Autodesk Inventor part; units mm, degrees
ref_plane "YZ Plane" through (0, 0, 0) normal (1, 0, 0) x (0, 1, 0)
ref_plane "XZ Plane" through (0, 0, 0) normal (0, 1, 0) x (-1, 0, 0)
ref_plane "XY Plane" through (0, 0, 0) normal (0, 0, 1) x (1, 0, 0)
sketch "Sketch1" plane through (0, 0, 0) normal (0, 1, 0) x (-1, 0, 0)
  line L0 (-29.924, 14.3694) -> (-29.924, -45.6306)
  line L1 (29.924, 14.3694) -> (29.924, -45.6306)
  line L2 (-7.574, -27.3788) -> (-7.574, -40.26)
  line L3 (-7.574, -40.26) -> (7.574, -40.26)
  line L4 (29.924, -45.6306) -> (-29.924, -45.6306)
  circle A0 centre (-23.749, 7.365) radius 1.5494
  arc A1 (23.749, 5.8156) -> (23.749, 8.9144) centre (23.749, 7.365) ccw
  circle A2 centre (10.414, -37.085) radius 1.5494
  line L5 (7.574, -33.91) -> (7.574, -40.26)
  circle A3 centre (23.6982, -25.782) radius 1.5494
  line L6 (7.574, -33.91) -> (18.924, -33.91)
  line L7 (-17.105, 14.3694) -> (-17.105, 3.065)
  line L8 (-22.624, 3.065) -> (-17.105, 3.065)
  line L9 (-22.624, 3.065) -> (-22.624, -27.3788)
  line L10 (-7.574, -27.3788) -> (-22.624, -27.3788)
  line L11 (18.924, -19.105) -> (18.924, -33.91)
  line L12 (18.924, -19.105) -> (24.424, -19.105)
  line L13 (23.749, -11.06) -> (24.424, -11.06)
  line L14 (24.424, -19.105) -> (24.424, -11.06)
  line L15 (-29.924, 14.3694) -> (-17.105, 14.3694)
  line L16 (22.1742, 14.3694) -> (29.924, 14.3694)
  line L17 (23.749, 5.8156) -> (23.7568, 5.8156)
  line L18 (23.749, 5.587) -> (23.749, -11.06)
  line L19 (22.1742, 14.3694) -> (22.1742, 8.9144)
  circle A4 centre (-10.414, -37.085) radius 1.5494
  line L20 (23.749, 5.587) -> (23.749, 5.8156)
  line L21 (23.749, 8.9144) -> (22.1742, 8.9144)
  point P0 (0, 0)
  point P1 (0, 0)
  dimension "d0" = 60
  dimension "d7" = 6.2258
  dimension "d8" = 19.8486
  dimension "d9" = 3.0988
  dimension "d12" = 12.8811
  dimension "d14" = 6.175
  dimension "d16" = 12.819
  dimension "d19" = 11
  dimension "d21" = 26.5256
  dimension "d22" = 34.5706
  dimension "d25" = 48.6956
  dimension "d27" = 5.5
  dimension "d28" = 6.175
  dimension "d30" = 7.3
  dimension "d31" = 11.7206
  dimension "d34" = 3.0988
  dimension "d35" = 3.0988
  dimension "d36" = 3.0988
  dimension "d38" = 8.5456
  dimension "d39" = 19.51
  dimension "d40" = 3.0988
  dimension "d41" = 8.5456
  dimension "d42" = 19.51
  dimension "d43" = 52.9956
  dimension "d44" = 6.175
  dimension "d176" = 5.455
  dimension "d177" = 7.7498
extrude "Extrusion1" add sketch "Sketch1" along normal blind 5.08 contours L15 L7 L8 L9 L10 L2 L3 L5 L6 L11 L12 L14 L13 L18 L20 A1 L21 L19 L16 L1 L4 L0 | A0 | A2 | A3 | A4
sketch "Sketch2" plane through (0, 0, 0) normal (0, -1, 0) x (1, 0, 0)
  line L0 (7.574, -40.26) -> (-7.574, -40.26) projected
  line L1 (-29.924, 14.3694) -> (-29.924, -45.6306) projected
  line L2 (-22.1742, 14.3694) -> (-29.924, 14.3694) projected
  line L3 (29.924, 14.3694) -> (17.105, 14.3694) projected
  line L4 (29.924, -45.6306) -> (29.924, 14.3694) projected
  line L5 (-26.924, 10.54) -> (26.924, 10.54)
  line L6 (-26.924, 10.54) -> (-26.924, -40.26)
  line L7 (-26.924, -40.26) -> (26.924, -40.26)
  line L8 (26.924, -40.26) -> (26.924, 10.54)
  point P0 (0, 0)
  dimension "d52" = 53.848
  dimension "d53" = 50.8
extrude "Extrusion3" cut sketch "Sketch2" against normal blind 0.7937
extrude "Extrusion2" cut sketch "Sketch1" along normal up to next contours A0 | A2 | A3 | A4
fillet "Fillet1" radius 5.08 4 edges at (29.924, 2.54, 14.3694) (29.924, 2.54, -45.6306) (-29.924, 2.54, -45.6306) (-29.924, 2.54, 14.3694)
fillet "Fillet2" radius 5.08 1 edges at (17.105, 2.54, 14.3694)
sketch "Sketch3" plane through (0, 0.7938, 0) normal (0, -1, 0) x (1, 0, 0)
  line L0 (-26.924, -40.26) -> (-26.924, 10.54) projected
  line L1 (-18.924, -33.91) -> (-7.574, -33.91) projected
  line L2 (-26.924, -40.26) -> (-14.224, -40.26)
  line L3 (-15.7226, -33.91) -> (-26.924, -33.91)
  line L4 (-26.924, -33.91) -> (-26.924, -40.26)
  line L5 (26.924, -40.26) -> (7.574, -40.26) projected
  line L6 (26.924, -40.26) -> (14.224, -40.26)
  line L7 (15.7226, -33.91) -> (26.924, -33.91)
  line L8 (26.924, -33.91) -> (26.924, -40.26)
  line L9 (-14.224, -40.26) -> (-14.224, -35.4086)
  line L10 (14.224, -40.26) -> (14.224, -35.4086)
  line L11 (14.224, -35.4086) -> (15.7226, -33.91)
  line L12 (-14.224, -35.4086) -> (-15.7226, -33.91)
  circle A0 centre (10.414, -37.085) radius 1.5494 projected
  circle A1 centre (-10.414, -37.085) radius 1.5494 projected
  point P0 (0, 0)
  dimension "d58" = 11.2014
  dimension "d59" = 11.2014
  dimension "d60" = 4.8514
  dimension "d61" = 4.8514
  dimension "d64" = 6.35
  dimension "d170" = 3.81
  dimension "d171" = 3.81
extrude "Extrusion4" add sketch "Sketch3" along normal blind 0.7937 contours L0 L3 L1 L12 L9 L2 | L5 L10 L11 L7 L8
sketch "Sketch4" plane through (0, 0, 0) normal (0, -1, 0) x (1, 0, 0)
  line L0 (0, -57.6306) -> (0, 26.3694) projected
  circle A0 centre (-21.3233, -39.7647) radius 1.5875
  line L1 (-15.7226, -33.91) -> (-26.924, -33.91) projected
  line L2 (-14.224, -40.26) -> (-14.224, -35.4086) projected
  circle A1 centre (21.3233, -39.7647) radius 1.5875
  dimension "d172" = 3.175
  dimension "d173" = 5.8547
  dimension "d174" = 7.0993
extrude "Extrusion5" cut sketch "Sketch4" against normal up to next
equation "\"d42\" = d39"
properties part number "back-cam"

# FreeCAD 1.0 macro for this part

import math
import FreeCAD as App
import Part
import Sketcher
from FreeCAD import Vector
Q = App.Units.Quantity


def edges_at(feature, points):
    """Names of the edges that pass closest to the given points."""
    edges = feature.Shape.Edges
    near = lambda p: min(range(len(edges)), key=lambda i: edges[i].distToShape(Part.Vertex(*p))[0])
    return sorted({f"Edge{near(p) + 1}" for p in points})

doc = App.newDocument("Part")
body = doc.addObject("PartDesign::Body", "Body")

sketch1 = doc.addObject("Sketcher::SketchObject", "Sketch")
body.addObject(sketch1)
sketch1.AttachmentSupport = (doc.XZ_Plane, [""])
sketch1.MapMode = "FlatFace"
sketch1.addGeometry(Part.LineSegment(Vector(17.105, 14.3694, 0), Vector(29.924, 14.3694, 0)), False)
sketch1.addGeometry(Part.LineSegment(Vector(29.924, 14.3694, 0), Vector(29.924, -45.6306, 0)), False)
sketch1.addGeometry(Part.LineSegment(Vector(29.924, -45.6306, 0), Vector(-29.924, -45.6306, 0)), False)
sketch1.addGeometry(Part.LineSegment(Vector(-29.924, -45.6306, 0), Vector(-29.924, 14.3694, 0)), False)
sketch1.addGeometry(Part.LineSegment(Vector(-29.924, 14.3694, 0), Vector(-22.1742, 14.3694, 0)), False)
sketch1.addGeometry(Part.LineSegment(Vector(-22.1742, 14.3694, 0), Vector(-22.1742, 8.9144, 0)), False)
sketch1.addGeometry(Part.LineSegment(Vector(-22.1742, 8.9144, 0), Vector(-23.749, 8.9144, 0)), False)
sketch1.addGeometry(Part.ArcOfCircle(Part.Circle(Vector(-23.749, 7.365, 0), Vector(0, 0, 1), 1.5494), math.radians(90), math.radians(270)), False)
sketch1.addGeometry(Part.LineSegment(Vector(-23.749, 5.8156, 0), Vector(-23.749, -11.06, 0)), False)
sketch1.addGeometry(Part.LineSegment(Vector(-23.749, -11.06, 0), Vector(-24.424, -11.06, 0)), False)
sketch1.addGeometry(Part.LineSegment(Vector(-24.424, -11.06, 0), Vector(-24.424, -19.105, 0)), False)
sketch1.addGeometry(Part.LineSegment(Vector(-24.424, -19.105, 0), Vector(-18.924, -19.105, 0)), False)
sketch1.addGeometry(Part.LineSegment(Vector(-18.924, -19.105, 0), Vector(-18.924, -33.91, 0)), False)
sketch1.addGeometry(Part.LineSegment(Vector(-18.924, -33.91, 0), Vector(-7.574, -33.91, 0)), False)
sketch1.addGeometry(Part.LineSegment(Vector(-7.574, -33.91, 0), Vector(-7.574, -40.26, 0)), False)
sketch1.addGeometry(Part.LineSegment(Vector(-7.574, -40.26, 0), Vector(7.574, -40.26, 0)), False)
sketch1.addGeometry(Part.LineSegment(Vector(7.574, -40.26, 0), Vector(7.574, -27.3788, 0)), False)
sketch1.addGeometry(Part.LineSegment(Vector(7.574, -27.3788, 0), Vector(22.624, -27.3788, 0)), False)
sketch1.addGeometry(Part.LineSegment(Vector(22.624, -27.3788, 0), Vector(22.624, 3.065, 0)), False)
sketch1.addGeometry(Part.LineSegment(Vector(22.624, 3.065, 0), Vector(17.105, 3.065, 0)), False)
sketch1.addGeometry(Part.LineSegment(Vector(17.105, 3.065, 0), Vector(17.105, 14.3694, 0)), False)
sketch1.addConstraint(Sketcher.Constraint("Coincident", 0, 2, 1, 1))
sketch1.addConstraint(Sketcher.Constraint("Coincident", 1, 2, 2, 1))
sketch1.addConstraint(Sketcher.Constraint("Coincident", 2, 2, 3, 1))
sketch1.addConstraint(Sketcher.Constraint("Coincident", 3, 2, 4, 1))
sketch1.addConstraint(Sketcher.Constraint("Coincident", 4, 2, 5, 1))
sketch1.addConstraint(Sketcher.Constraint("Coincident", 5, 2, 6, 1))
sketch1.addConstraint(Sketcher.Constraint("Tangent", 6, 2, 7, 1))
sketch1.addConstraint(Sketcher.Constraint("Coincident", 7, 2, 8, 1))
sketch1.addConstraint(Sketcher.Constraint("Coincident", 8, 2, 9, 1))
sketch1.addConstraint(Sketcher.Constraint("Coincident", 9, 2, 10, 1))
sketch1.addConstraint(Sketcher.Constraint("Coincident", 10, 2, 11, 1))
sketch1.addConstraint(Sketcher.Constraint("Coincident", 11, 2, 12, 1))
sketch1.addConstraint(Sketcher.Constraint("Coincident", 12, 2, 13, 1))
sketch1.addConstraint(Sketcher.Constraint("Coincident", 13, 2, 14, 1))
sketch1.addConstraint(Sketcher.Constraint("Coincident", 14, 2, 15, 1))
sketch1.addConstraint(Sketcher.Constraint("Coincident", 15, 2, 16, 1))
sketch1.addConstraint(Sketcher.Constraint("Coincident", 16, 2, 17, 1))
sketch1.addConstraint(Sketcher.Constraint("Coincident", 17, 2, 18, 1))
sketch1.addConstraint(Sketcher.Constraint("Coincident", 18, 2, 19, 1))
sketch1.addConstraint(Sketcher.Constraint("Coincident", 19, 2, 20, 1))
sketch1.addConstraint(Sketcher.Constraint("Coincident", 20, 2, 0, 1))
sketch1.addConstraint(Sketcher.Constraint("Horizontal", 0))
sketch1.addConstraint(Sketcher.Constraint("Vertical", 1))
sketch1.addConstraint(Sketcher.Constraint("Horizontal", 2))
sketch1.addConstraint(Sketcher.Constraint("Vertical", 3))
sketch1.addConstraint(Sketcher.Constraint("Horizontal", 4))
sketch1.addConstraint(Sketcher.Constraint("Vertical", 5))
sketch1.addConstraint(Sketcher.Constraint("Horizontal", 6))
sketch1.addConstraint(Sketcher.Constraint("Vertical", 8))
sketch1.addConstraint(Sketcher.Constraint("Horizontal", 9))
sketch1.addConstraint(Sketcher.Constraint("Vertical", 10))
sketch1.addConstraint(Sketcher.Constraint("Horizontal", 11))
sketch1.addConstraint(Sketcher.Constraint("Vertical", 12))
sketch1.addConstraint(Sketcher.Constraint("Horizontal", 13))
sketch1.addConstraint(Sketcher.Constraint("Vertical", 14))
sketch1.addConstraint(Sketcher.Constraint("Horizontal", 15))
sketch1.addConstraint(Sketcher.Constraint("Vertical", 16))
sketch1.addConstraint(Sketcher.Constraint("Horizontal", 17))
sketch1.addConstraint(Sketcher.Constraint("Vertical", 18))
sketch1.addConstraint(Sketcher.Constraint("Horizontal", 19))
sketch1.addConstraint(Sketcher.Constraint("Vertical", 20))
sketch1.addConstraint(Sketcher.Constraint("Symmetric", 0, 2, 3, 2, -2))
sketch1.addConstraint(Sketcher.Constraint("Vertical", 6, 2, 7, 2))
sketch1.addConstraint(Sketcher.Constraint("Radius", 7, Q("0.061 in")))
sketch1.addConstraint(Sketcher.Constraint("DistanceX", 4, 1, 4, 2, Q("0.3051 in")))
sketch1.addConstraint(Sketcher.Constraint("DistanceY", 1, 2, 1, 1, Q("2.3622 in")))
sketch1.addConstraint(Sketcher.Constraint("DistanceX", 0, 1, 0, 2, Q("12.819 mm")))
sketch1.addConstraint(Sketcher.Constraint("DistanceX", 11, 1, 11, 2, Q("5.5 mm")))
sketch1.addConstraint(Sketcher.Constraint("DistanceY", 5, 2, 5, 1, Q("5.455 mm")))
sketch1.addConstraint(Sketcher.Constraint("DistanceY", 14, 2, 14, 1, Q("0.25 in")))
sketch1.addConstraint(Sketcher.Constraint("DistanceY", 16, 1, 16, 2, Q("12.8812 mm")))
sketch1.addConstraint(Sketcher.Constraint("DistanceX", 2, 2, 7, 3, Q("0.2431 in")))
sketch1.addConstraint(Sketcher.Constraint("DistanceX", 17, 2, 1, 2, Q("0.2874 in")))
sketch1.addConstraint(Sketcher.Constraint("DistanceX", 2, 2, 10, 2, Q("5.5 mm")))
sketch1.addConstraint(Sketcher.Constraint("DistanceY", 2, 2, 10, 2, Q("26.5256 mm")))
sketch1.addConstraint(Sketcher.Constraint("DistanceY", 2, 2, 12, 2, Q("11.7206 mm")))
sketch1.addConstraint(Sketcher.Constraint("DistanceY", 8, 2, 8, 1, Q("0.6644 in")))
sketch1.addConstraint(Sketcher.Constraint("DistanceX", 7, 3, -1, 1, Q("0.935 in")))
sketch1.addConstraint(Sketcher.Constraint("DistanceX", 13, 1, 13, 2, Q("11.35 mm")))
sketch1.addConstraint(Sketcher.Constraint("DistanceX", 15, 1, 15, 2, Q("15.148 mm")))
sketch1.addConstraint(Sketcher.Constraint("DistanceY", 18, 1, 18, 2, Q("30.4438 mm")))
sketch1.addConstraint(Sketcher.Constraint("DistanceY", 16, 2, -1, 1, Q("1.0779 in")))
pad1 = doc.addObject("PartDesign::Pad", "Pad")
body.addObject(pad1)
pad1.Profile = sketch1
pad1.Length = Q("0.2 in")
pad1.Reversed = True

sketch2 = doc.addObject("Sketcher::SketchObject", "Sketch001")
body.addObject(sketch2)
sketch2.AttachmentSupport = (doc.XZ_Plane, [""])
sketch2.MapMode = "FlatFace"
sketch2.addGeometry(Part.LineSegment(Vector(-26.924, -40.26, 0), Vector(26.924, -40.26, 0)), False)
sketch2.addGeometry(Part.LineSegment(Vector(26.924, -40.26, 0), Vector(26.924, 10.54, 0)), False)
sketch2.addGeometry(Part.LineSegment(Vector(26.924, 10.54, 0), Vector(-26.924, 10.54, 0)), False)
sketch2.addGeometry(Part.LineSegment(Vector(-26.924, 10.54, 0), Vector(-26.924, -40.26, 0)), False)
sketch2.addConstraint(Sketcher.Constraint("Coincident", 0, 2, 1, 1))
sketch2.addConstraint(Sketcher.Constraint("Coincident", 1, 2, 2, 1))
sketch2.addConstraint(Sketcher.Constraint("Coincident", 2, 2, 3, 1))
sketch2.addConstraint(Sketcher.Constraint("Coincident", 3, 2, 0, 1))
sketch2.addConstraint(Sketcher.Constraint("Horizontal", 0))
sketch2.addConstraint(Sketcher.Constraint("Vertical", 1))
sketch2.addConstraint(Sketcher.Constraint("Horizontal", 2))
sketch2.addConstraint(Sketcher.Constraint("Vertical", 3))
sketch2.addConstraint(Sketcher.Constraint("DistanceY", 1, 1, 1, 2, Q("2 in")))
sketch2.addConstraint(Sketcher.Constraint("DistanceX", 0, 1, 0, 2, Q("2.12 in")))
sketch2.addConstraint(Sketcher.Constraint("DistanceX", -1, 1, 0, 2, Q("1.06 in")))
sketch2.addConstraint(Sketcher.Constraint("DistanceY", 0, 2, -1, 1, Q("40.26 mm")))
pocket1 = doc.addObject("PartDesign::Pocket", "Pocket")
body.addObject(pocket1)
pocket1.Profile = sketch2
pocket1.Length = Q("0.031248 in")

sketch3 = doc.addObject("Sketcher::SketchObject", "Sketch002")
body.addObject(sketch3)
sketch3.AttachmentSupport = (doc.XZ_Plane, [""])
sketch3.MapMode = "FlatFace"
sketch3.addGeometry(Part.Circle(Vector(23.749, 7.365, 0), Vector(0, 0, 1), 1.5494), False)
sketch3.addGeometry(Part.Circle(Vector(-10.414, -37.085, 0), Vector(0, 0, 1), 1.5494), False)
sketch3.addGeometry(Part.Circle(Vector(-23.6982, -25.782, 0), Vector(0, 0, 1), 1.5494), False)
sketch3.addGeometry(Part.Circle(Vector(10.414, -37.085, 0), Vector(0, 0, 1), 1.5494), False)
sketch3.addConstraint(Sketcher.Constraint("Equal", 0, 1))
sketch3.addConstraint(Sketcher.Constraint("Equal", 1, 2))
sketch3.addConstraint(Sketcher.Constraint("Equal", 2, 3))
sketch3.addConstraint(Sketcher.Constraint("Symmetric", 1, 3, 3, 3, -2))
sketch3.addConstraint(Sketcher.Constraint("Diameter", 0, Q("0.122 in")))
sketch3.addConstraint(Sketcher.Constraint("DistanceX", 1, 3, -1, 1, Q("0.41 in")))
sketch3.addConstraint(Sketcher.Constraint("DistanceY", 1, 3, 0, 3, Q("1.75 in")))
sketch3.addConstraint(Sketcher.Constraint("DistanceX", -1, 1, 0, 3, Q("0.935 in")))
sketch3.addConstraint(Sketcher.Constraint("DistanceX", 2, 3, -1, 1, Q("0.933 in")))
sketch3.addConstraint(Sketcher.Constraint("DistanceY", 1, 3, 2, 3, Q("0.445 in")))
sketch3.addConstraint(Sketcher.Constraint("DistanceY", -1, 1, 0, 3, Q("7.365 mm")))
pocket2 = doc.addObject("PartDesign::Pocket", "Pocket001")
body.addObject(pocket2)
pocket2.Profile = sketch3
pocket2.Length = Q("0.2 in")
doc.recompute()

fillet = doc.addObject("PartDesign::Fillet", "Fillet")
body.addObject(fillet)
fillet.Base = (pocket2, edges_at(pocket2, [
    (29.924, 2.54, 14.369),
    (29.924, 2.54, -45.631),
    (-29.924, 2.54, -45.631),
    (-29.924, 2.54, 14.369),
]))
fillet.Radius = Q("0.2 in")
doc.recompute()

fillet2 = doc.addObject("PartDesign::Fillet", "Fillet001")
body.addObject(fillet2)
fillet2.Base = (fillet, edges_at(fillet, [(17.105, 2.54, 14.369)]))
fillet2.Radius = Q("0.2 in")

sketch4 = doc.addObject("Sketcher::SketchObject", "Sketch003")
body.addObject(sketch4)
sketch4.AttachmentSupport = (doc.XZ_Plane, [""])
sketch4.MapMode = "FlatFace"
sketch4.AttachmentOffset = App.Placement(Vector(0, 0, -0.031252 * 25.4), App.Rotation())
sketch4.addGeometry(Part.LineSegment(Vector(-26.924, -33.91, 0), Vector(-26.924, -40.26, 0)), False)
sketch4.addGeometry(Part.LineSegment(Vector(-26.924, -40.26, 0), Vector(-14.224, -40.26, 0)), False)
sketch4.addGeometry(Part.LineSegment(Vector(-14.224, -40.26, 0), Vector(-14.224, -35.4086, 0)), False)
sketch4.addGeometry(Part.LineSegment(Vector(-14.224, -35.4086, 0), Vector(-15.7226, -33.91, 0)), False)
sketch4.addGeometry(Part.LineSegment(Vector(-15.7226, -33.91, 0), Vector(-26.924, -33.91, 0)), False)
sketch4.addGeometry(Part.LineSegment(Vector(14.224, -40.26, 0), Vector(26.924, -40.26, 0)), False)
sketch4.addGeometry(Part.LineSegment(Vector(26.924, -40.26, 0), Vector(26.924, -33.91, 0)), False)
sketch4.addGeometry(Part.LineSegment(Vector(26.924, -33.91, 0), Vector(15.7226, -33.91, 0)), False)
sketch4.addGeometry(Part.LineSegment(Vector(15.7226, -33.91, 0), Vector(14.224, -35.4086, 0)), False)
sketch4.addGeometry(Part.LineSegment(Vector(14.224, -35.4086, 0), Vector(14.224, -40.26, 0)), False)
sketch4.addConstraint(Sketcher.Constraint("Coincident", 0, 2, 1, 1))
sketch4.addConstraint(Sketcher.Constraint("Coincident", 1, 2, 2, 1))
sketch4.addConstraint(Sketcher.Constraint("Coincident", 2, 2, 3, 1))
sketch4.addConstraint(Sketcher.Constraint("Coincident", 3, 2, 4, 1))
sketch4.addConstraint(Sketcher.Constraint("Coincident", 4, 2, 0, 1))
sketch4.addConstraint(Sketcher.Constraint("Coincident", 5, 2, 6, 1))
sketch4.addConstraint(Sketcher.Constraint("Coincident", 6, 2, 7, 1))
sketch4.addConstraint(Sketcher.Constraint("Coincident", 7, 2, 8, 1))
sketch4.addConstraint(Sketcher.Constraint("Coincident", 8, 2, 9, 1))
sketch4.addConstraint(Sketcher.Constraint("Coincident", 9, 2, 5, 1))
sketch4.addConstraint(Sketcher.Constraint("Vertical", 0))
sketch4.addConstraint(Sketcher.Constraint("Horizontal", 1))
sketch4.addConstraint(Sketcher.Constraint("Vertical", 2))
sketch4.addConstraint(Sketcher.Constraint("Horizontal", 4))
sketch4.addConstraint(Sketcher.Constraint("Horizontal", 5))
sketch4.addConstraint(Sketcher.Constraint("Vertical", 6))
sketch4.addConstraint(Sketcher.Constraint("Horizontal", 7))
sketch4.addConstraint(Sketcher.Constraint("Vertical", 9))
sketch4.addConstraint(Sketcher.Constraint("Symmetric", 0, 2, 5, 2, -2))
sketch4.addConstraint(Sketcher.Constraint("Symmetric", 3, 2, 7, 2, -2))
sketch4.addConstraint(Sketcher.Constraint("Symmetric", 2, 2, 8, 2, -2))
sketch4.addConstraint(Sketcher.Constraint("Perpendicular", 3, 8))
sketch4.addConstraint(Sketcher.Constraint("DistanceY", 0, 2, 0, 1, Q("0.25 in")))
sketch4.addConstraint(Sketcher.Constraint("DistanceX", 4, 2, 4, 1, Q("0.441 in")))
sketch4.addConstraint(Sketcher.Constraint("DistanceY", 2, 1, 2, 2, Q("0.191 in")))
sketch4.addConstraint(Sketcher.Constraint("DistanceX", 0, 2, -1, 1, Q("1.06 in")))
sketch4.addConstraint(Sketcher.Constraint("DistanceY", 0, 2, -1, 1, Q("40.26 mm")))
pad2 = doc.addObject("PartDesign::Pad", "Pad001")
body.addObject(pad2)
pad2.Profile = sketch4
pad2.Length = Q("0.031248 in")

sketch5 = doc.addObject("Sketcher::SketchObject", "Sketch004")
body.addObject(sketch5)
sketch5.AttachmentSupport = (doc.XZ_Plane, [""])
sketch5.MapMode = "FlatFace"
sketch5.addGeometry(Part.Circle(Vector(-21.3233, -39.7647, 0), Vector(0, 0, 1), 1.5875), False)
sketch5.addGeometry(Part.Circle(Vector(21.3233, -39.7647, 0), Vector(0, 0, 1), 1.5875), False)
sketch5.addConstraint(Sketcher.Constraint("Equal", 0, 1))
sketch5.addConstraint(Sketcher.Constraint("Symmetric", 0, 3, 1, 3, -2))
sketch5.addConstraint(Sketcher.Constraint("Diameter", 0, Q("0.125 in")))
sketch5.addConstraint(Sketcher.Constraint("DistanceX", 0, 3, 1, 3, Q("1.679 in")))
sketch5.addConstraint(Sketcher.Constraint("DistanceY", 0, 3, -1, 1, Q("39.7647 mm")))
pocket3 = doc.addObject("PartDesign::Pocket", "Pocket002")
body.addObject(pocket3)
pocket3.Profile = sketch5
pocket3.Length = Q("0.2 in")

doc.recompute()
